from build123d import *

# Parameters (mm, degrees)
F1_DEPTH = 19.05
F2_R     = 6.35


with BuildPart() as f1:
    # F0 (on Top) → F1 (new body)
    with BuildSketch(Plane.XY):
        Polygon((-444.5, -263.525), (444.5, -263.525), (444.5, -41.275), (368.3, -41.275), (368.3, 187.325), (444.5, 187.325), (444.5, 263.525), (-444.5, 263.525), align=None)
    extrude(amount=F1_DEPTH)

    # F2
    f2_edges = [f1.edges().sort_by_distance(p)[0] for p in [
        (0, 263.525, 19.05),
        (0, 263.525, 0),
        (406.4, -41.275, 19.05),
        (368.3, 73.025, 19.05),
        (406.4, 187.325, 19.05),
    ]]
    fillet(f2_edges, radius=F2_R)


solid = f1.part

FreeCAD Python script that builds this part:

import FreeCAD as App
import Part
import Sketcher
from FreeCAD import Vector
Q = App.Units.Quantity


def edges_at(feature, points):
    """Names of the edges that pass closest to the given points."""
    edges = feature.Shape.Edges
    near = lambda p: min(range(len(edges)), key=lambda i: edges[i].distToShape(Part.Vertex(*p))[0])
    return sorted({f"Edge{near(p) + 1}" for p in points})


def add_polygon(sketch, points):
    """Adds a closed chain of lines whose ends are joined by coincident constraints."""
    first, n = sketch.GeometryCount, len(points)
    for a, b in zip(points, points[1:] + points[:1]):
        sketch.addGeometry(Part.LineSegment(App.Vector(*a, 0), App.Vector(*b, 0)), False)
    for i in range(n):
        sketch.addConstraint(Sketcher.Constraint("Coincident", first + i, 2, first + (i + 1) % n, 1))

doc = App.newDocument("Part")
body = doc.addObject("PartDesign::Body", "Body")

# Sketch on XY plane
sketch1 = body.newObject("Sketcher::SketchObject", "Sketch")
sketch1.AttachmentSupport = (doc.getObject("XY_Plane"), [""])
sketch1.MapMode = "FlatFace"
add_polygon(sketch1, [(-444, -264), (444, -264), (444, -41), (368, -41), (368, 187), (444, 187), (444, 264), (-444, 264)])  # lines 0-7
sketch1.addConstraint(Sketcher.Constraint("Horizontal", 0))
sketch1.addConstraint(Sketcher.Constraint("Vertical", 1))
sketch1.addConstraint(Sketcher.Constraint("Horizontal", 2))
sketch1.addConstraint(Sketcher.Constraint("Vertical", 3))
sketch1.addConstraint(Sketcher.Constraint("Horizontal", 4))
sketch1.addConstraint(Sketcher.Constraint("Vertical", 5))
sketch1.addConstraint(Sketcher.Constraint("Horizontal", 6))
sketch1.addConstraint(Sketcher.Constraint("Vertical", 7))
sketch1.addConstraint(Sketcher.Constraint("Symmetric", 0, 2, 6, 2, -1, 1))
sketch1.addConstraint(Sketcher.Constraint("Vertical", 1, 2, 4, 2))
sketch1.addConstraint(Sketcher.Constraint("Equal", 4, 5))
sketch1.addConstraint(Sketcher.Constraint("DistanceX", 0, 1, 0, 2, Q("35 in")))
sketch1.addConstraint(Sketcher.Constraint("DistanceX", 2, 2, 2, 1, Q("3 in")))
sketch1.addConstraint(Sketcher.Constraint("DistanceY", 3, 1, 3, 2, Q("9 in")))
sketch1.addConstraint(Sketcher.Constraint("DistanceY", 1, 1, 1, 2, Q("8.75 in")))
pad1 = body.newObject("PartDesign::Pad", "Pad")
pad1.Profile = sketch1
pad1.Length = Q("0.75 in")
doc.recompute()

fillet = body.newObject("PartDesign::Fillet", "Fillet")
fillet.Base = (pad1, edges_at(pad1, [
    (0, 263.525, 19.05),
    (0, 263.525, 0),
    (406.4, -41.275, 19.05),
    (368.3, 73.025, 19.05),
    (406.4, 187.325, 19.05),
]))
fillet.Radius = Q("0.25 in")

doc.recompute()
